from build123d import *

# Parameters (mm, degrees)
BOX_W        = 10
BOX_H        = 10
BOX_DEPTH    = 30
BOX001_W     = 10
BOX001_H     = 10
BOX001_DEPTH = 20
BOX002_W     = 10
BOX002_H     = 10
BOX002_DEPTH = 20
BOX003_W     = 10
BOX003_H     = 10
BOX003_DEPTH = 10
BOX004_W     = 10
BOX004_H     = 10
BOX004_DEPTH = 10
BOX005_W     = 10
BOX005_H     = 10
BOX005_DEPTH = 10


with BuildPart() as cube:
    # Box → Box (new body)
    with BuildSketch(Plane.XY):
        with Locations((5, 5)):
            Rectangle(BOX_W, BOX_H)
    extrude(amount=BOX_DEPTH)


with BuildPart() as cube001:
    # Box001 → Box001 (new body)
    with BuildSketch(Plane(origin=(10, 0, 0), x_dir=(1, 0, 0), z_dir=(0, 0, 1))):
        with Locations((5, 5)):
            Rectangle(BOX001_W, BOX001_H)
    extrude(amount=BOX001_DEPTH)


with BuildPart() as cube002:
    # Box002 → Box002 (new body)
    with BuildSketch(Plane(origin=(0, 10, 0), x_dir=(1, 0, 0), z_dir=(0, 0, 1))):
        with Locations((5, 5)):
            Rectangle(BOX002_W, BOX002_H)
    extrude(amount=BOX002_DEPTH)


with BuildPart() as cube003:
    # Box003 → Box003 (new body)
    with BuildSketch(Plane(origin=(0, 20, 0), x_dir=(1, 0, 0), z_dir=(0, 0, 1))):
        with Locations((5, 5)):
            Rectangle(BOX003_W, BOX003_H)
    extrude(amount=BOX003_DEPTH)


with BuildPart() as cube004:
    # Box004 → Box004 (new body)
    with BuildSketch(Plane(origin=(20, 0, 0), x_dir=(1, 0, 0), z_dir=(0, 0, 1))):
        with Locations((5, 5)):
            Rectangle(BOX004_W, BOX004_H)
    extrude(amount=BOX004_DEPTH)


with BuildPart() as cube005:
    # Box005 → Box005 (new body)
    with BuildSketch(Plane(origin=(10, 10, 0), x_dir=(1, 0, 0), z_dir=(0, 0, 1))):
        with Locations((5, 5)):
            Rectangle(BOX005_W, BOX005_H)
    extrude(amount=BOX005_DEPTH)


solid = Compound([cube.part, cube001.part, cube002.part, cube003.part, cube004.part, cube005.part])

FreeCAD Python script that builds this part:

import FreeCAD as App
import Part
import Sketcher
from FreeCAD import Vector
Q = App.Units.Quantity

doc = App.newDocument("Part")
body = doc.addObject("PartDesign::Body", "Body")

# Sketch on XY plane
sketch1 = body.newObject("Sketcher::SketchObject", "Sketch")
sketch1.AttachmentSupport = (doc.getObject("XY_Plane"), [""])
sketch1.MapMode = "FlatFace"
sketch1.addGeometry(Part.LineSegment(Vector(0, 10, 0), Vector(0, 0, 0)), False)
sketch1.addGeometry(Part.LineSegment(Vector(0, 0, 0), Vector(10, 0, 0)), False)
sketch1.addGeometry(Part.LineSegment(Vector(10, 0, 0), Vector(10, 10, 0)), False)
sketch1.addGeometry(Part.LineSegment(Vector(10, 10, 0), Vector(0, 10, 0)), False)
sketch1.addConstraint(Sketcher.Constraint("Coincident", 0, 2, 1, 1))
sketch1.addConstraint(Sketcher.Constraint("Coincident", 1, 2, 2, 1))
sketch1.addConstraint(Sketcher.Constraint("Coincident", 2, 2, 3, 1))
sketch1.addConstraint(Sketcher.Constraint("Coincident", 3, 2, 0, 1))
sketch1.addConstraint(Sketcher.Constraint("Vertical", 0))
sketch1.addConstraint(Sketcher.Constraint("Horizontal", 1))
sketch1.addConstraint(Sketcher.Constraint("Vertical", 2))
sketch1.addConstraint(Sketcher.Constraint("Horizontal", 3))
sketch1.addConstraint(Sketcher.Constraint("Coincident", 0, 2, -1, 1))
sketch1.addConstraint(Sketcher.Constraint("Equal", 3, 0))
sketch1.addConstraint(Sketcher.Constraint("DistanceX", 1, 1, 1, 2, Q("10 mm")))
pad1 = body.newObject("PartDesign::Pad", "Pad")
pad1.Profile = sketch1
pad1.Length = 30
body2 = doc.addObject("PartDesign::Body", "Body001")

# Sketch on XY plane
sketch2 = body2.newObject("Sketcher::SketchObject", "Sketch001")
sketch2.AttachmentSupport = (doc.getObject("XY_Plane001"), [""])
sketch2.MapMode = "FlatFace"
sketch2.addGeometry(Part.LineSegment(Vector(10, 10, 0), Vector(10, 0, 0)), False)
sketch2.addGeometry(Part.LineSegment(Vector(10, 0, 0), Vector(20, 0, 0)), False)
sketch2.addGeometry(Part.LineSegment(Vector(20, 0, 0), Vector(20, 10, 0)), False)
sketch2.addGeometry(Part.LineSegment(Vector(20, 10, 0), Vector(10, 10, 0)), False)
sketch2.addConstraint(Sketcher.Constraint("Coincident", 0, 2, 1, 1))
sketch2.addConstraint(Sketcher.Constraint("Coincident", 1, 2, 2, 1))
sketch2.addConstraint(Sketcher.Constraint("Coincident", 2, 2, 3, 1))
sketch2.addConstraint(Sketcher.Constraint("Coincident", 3, 2, 0, 1))
sketch2.addConstraint(Sketcher.Constraint("Vertical", 0))
sketch2.addConstraint(Sketcher.Constraint("Horizontal", 1))
sketch2.addConstraint(Sketcher.Constraint("Vertical", 2))
sketch2.addConstraint(Sketcher.Constraint("Horizontal", 3))
sketch2.addConstraint(Sketcher.Constraint("PointOnObject", 0, 2, -1))
sketch2.addConstraint(Sketcher.Constraint("Equal", 3, 0))
sketch2.addConstraint(Sketcher.Constraint("DistanceX", 1, 1, 1, 2, Q("10 mm")))
sketch2.addConstraint(Sketcher.Constraint("DistanceX", -1, 1, 0, 2, Q("10 mm")))
pad2 = body2.newObject("PartDesign::Pad", "Pad001")
pad2.Profile = sketch2
pad2.Length = 20
body3 = doc.addObject("PartDesign::Body", "Body002")

# Sketch on XY plane
sketch3 = body3.newObject("Sketcher::SketchObject", "Sketch002")
sketch3.AttachmentSupport = (doc.getObject("XY_Plane002"), [""])
sketch3.MapMode = "FlatFace"
sketch3.addGeometry(Part.LineSegment(Vector(0, 20, 0), Vector(0, 10, 0)), False)
sketch3.addGeometry(Part.LineSegment(Vector(0, 10, 0), Vector(10, 10, 0)), False)
sketch3.addGeometry(Part.LineSegment(Vector(10, 10, 0), Vector(10, 20, 0)), False)
sketch3.addGeometry(Part.LineSegment(Vector(10, 20, 0), Vector(0, 20, 0)), False)
sketch3.addConstraint(Sketcher.Constraint("Coincident", 0, 2, 1, 1))
sketch3.addConstraint(Sketcher.Constraint("Coincident", 1, 2, 2, 1))
sketch3.addConstraint(Sketcher.Constraint("Coincident", 2, 2, 3, 1))
sketch3.addConstraint(Sketcher.Constraint("Coincident", 3, 2, 0, 1))
sketch3.addConstraint(Sketcher.Constraint("Vertical", 0))
sketch3.addConstraint(Sketcher.Constraint("Horizontal", 1))
sketch3.addConstraint(Sketcher.Constraint("Vertical", 2))
sketch3.addConstraint(Sketcher.Constraint("Horizontal", 3))
sketch3.addConstraint(Sketcher.Constraint("PointOnObject", 0, 2, -2))
sketch3.addConstraint(Sketcher.Constraint("Equal", 3, 0))
sketch3.addConstraint(Sketcher.Constraint("DistanceX", 1, 1, 1, 2, Q("10 mm")))
sketch3.addConstraint(Sketcher.Constraint("DistanceY", -1, 1, 0, 2, Q("10 mm")))
pad3 = body3.newObject("PartDesign::Pad", "Pad002")
pad3.Profile = sketch3
pad3.Length = 20
body4 = doc.addObject("PartDesign::Body", "Body003")

# Sketch on XY plane
sketch4 = body4.newObject("Sketcher::SketchObject", "Sketch003")
sketch4.AttachmentSupport = (doc.getObject("XY_Plane003"), [""])
sketch4.MapMode = "FlatFace"
sketch4.addGeometry(Part.LineSegment(Vector(0, 30, 0), Vector(0, 20, 0)), False)
sketch4.addGeometry(Part.LineSegment(Vector(0, 20, 0), Vector(10, 20, 0)), False)
sketch4.addGeometry(Part.LineSegment(Vector(10, 20, 0), Vector(10, 30, 0)), False)
sketch4.addGeometry(Part.LineSegment(Vector(10, 30, 0), Vector(0, 30, 0)), False)
sketch4.addConstraint(Sketcher.Constraint("Coincident", 0, 2, 1, 1))
sketch4.addConstraint(Sketcher.Constraint("Coincident", 1, 2, 2, 1))
sketch4.addConstraint(Sketcher.Constraint("Coincident", 2, 2, 3, 1))
sketch4.addConstraint(Sketcher.Constraint("Coincident", 3, 2, 0, 1))
sketch4.addConstraint(Sketcher.Constraint("Vertical", 0))
sketch4.addConstraint(Sketcher.Constraint("Horizontal", 1))
sketch4.addConstraint(Sketcher.Constraint("Vertical", 2))
sketch4.addConstraint(Sketcher.Constraint("Horizontal", 3))
sketch4.addConstraint(Sketcher.Constraint("PointOnObject", 0, 2, -2))
sketch4.addConstraint(Sketcher.Constraint("Equal", 3, 0))
sketch4.addConstraint(Sketcher.Constraint("DistanceX", 1, 1, 1, 2, Q("10 mm")))
sketch4.addConstraint(Sketcher.Constraint("DistanceY", -1, 1, 0, 2, Q("20 mm")))
pad4 = body4.newObject("PartDesign::Pad", "Pad003")
pad4.Profile = sketch4
pad4.Length = 10
body5 = doc.addObject("PartDesign::Body", "Body004")

# Sketch on XY plane
sketch5 = body5.newObject("Sketcher::SketchObject", "Sketch004")
sketch5.AttachmentSupport = (doc.getObject("XY_Plane004"), [""])
sketch5.MapMode = "FlatFace"
sketch5.addGeometry(Part.LineSegment(Vector(20, 10, 0), Vector(20, 0, 0)), False)
sketch5.addGeometry(Part.LineSegment(Vector(20, 0, 0), Vector(30, 0, 0)), False)
sketch5.addGeometry(Part.LineSegment(Vector(30, 0, 0), Vector(30, 10, 0)), False)
sketch5.addGeometry(Part.LineSegment(Vector(30, 10, 0), Vector(20, 10, 0)), False)
sketch5.addConstraint(Sketcher.Constraint("Coincident", 0, 2, 1, 1))
sketch5.addConstraint(Sketcher.Constraint("Coincident", 1, 2, 2, 1))
sketch5.addConstraint(Sketcher.Constraint("Coincident", 2, 2, 3, 1))
sketch5.addConstraint(Sketcher.Constraint("Coincident", 3, 2, 0, 1))
sketch5.addConstraint(Sketcher.Constraint("Vertical", 0))
sketch5.addConstraint(Sketcher.Constraint("Horizontal", 1))
sketch5.addConstraint(Sketcher.Constraint("Vertical", 2))
sketch5.addConstraint(Sketcher.Constraint("Horizontal", 3))
sketch5.addConstraint(Sketcher.Constraint("PointOnObject", 0, 2, -1))
sketch5.addConstraint(Sketcher.Constraint("Equal", 3, 0))
sketch5.addConstraint(Sketcher.Constraint("DistanceX", 1, 1, 1, 2, Q("10 mm")))
sketch5.addConstraint(Sketcher.Constraint("DistanceX", -1, 1, 0, 2, Q("20 mm")))
pad5 = body5.newObject("PartDesign::Pad", "Pad004")
pad5.Profile = sketch5
pad5.Length = 10
body6 = doc.addObject("PartDesign::Body", "Body005")

# Sketch on XY plane
sketch6 = body6.newObject("Sketcher::SketchObject", "Sketch005")
sketch6.AttachmentSupport = (doc.getObject("XY_Plane005"), [""])
sketch6.MapMode = "FlatFace"
sketch6.addGeometry(Part.LineSegment(Vector(10, 20, 0), Vector(10, 10, 0)), False)
sketch6.addGeometry(Part.LineSegment(Vector(10, 10, 0), Vector(20, 10, 0)), False)
sketch6.addGeometry(Part.LineSegment(Vector(20, 10, 0), Vector(20, 20, 0)), False)
sketch6.addGeometry(Part.LineSegment(Vector(20, 20, 0), Vector(10, 20, 0)), False)
sketch6.addConstraint(Sketcher.Constraint("Coincident", 0, 2, 1, 1))
sketch6.addConstraint(Sketcher.Constraint("Coincident", 1, 2, 2, 1))
sketch6.addConstraint(Sketcher.Constraint("Coincident", 2, 2, 3, 1))
sketch6.addConstraint(Sketcher.Constraint("Coincident", 3, 2, 0, 1))
sketch6.addConstraint(Sketcher.Constraint("Vertical", 0))
sketch6.addConstraint(Sketcher.Constraint("Horizontal", 1))
sketch6.addConstraint(Sketcher.Constraint("Vertical", 2))
sketch6.addConstraint(Sketcher.Constraint("Horizontal", 3))
sketch6.addConstraint(Sketcher.Constraint("Equal", 3, 0))
sketch6.addConstraint(Sketcher.Constraint("DistanceX", 1, 1, 1, 2, Q("10 mm")))
sketch6.addConstraint(Sketcher.Constraint("DistanceX", -1, 1, 0, 2, Q("10 mm")))
sketch6.addConstraint(Sketcher.Constraint("DistanceY", -1, 1, 0, 2, Q("10 mm")))
pad6 = body6.newObject("PartDesign::Pad", "Pad005")
pad6.Profile = sketch6
pad6.Length = 10

doc.recompute()
